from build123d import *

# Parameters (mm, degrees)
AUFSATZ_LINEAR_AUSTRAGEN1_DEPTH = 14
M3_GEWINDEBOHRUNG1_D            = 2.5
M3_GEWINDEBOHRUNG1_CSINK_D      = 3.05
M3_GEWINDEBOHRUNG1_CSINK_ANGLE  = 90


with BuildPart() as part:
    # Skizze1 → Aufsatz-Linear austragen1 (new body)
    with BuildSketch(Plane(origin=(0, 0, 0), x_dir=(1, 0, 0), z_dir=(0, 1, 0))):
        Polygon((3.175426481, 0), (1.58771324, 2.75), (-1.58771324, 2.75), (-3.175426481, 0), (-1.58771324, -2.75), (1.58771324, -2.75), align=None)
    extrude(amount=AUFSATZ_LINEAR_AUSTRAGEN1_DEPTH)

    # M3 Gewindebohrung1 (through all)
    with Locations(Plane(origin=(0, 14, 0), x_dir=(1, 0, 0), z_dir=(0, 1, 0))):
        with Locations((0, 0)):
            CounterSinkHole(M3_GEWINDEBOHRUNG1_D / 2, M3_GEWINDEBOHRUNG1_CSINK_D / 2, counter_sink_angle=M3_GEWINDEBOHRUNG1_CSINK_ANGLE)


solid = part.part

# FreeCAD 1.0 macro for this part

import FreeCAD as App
import Part
import Sketcher

V = App.Vector
Q = App.Units.Quantity


def add_polygon(sketch, points):
    """Adds a closed chain of lines whose ends are joined by coincident constraints."""
    first, n = sketch.GeometryCount, len(points)
    for a, b in zip(points, points[1:] + points[:1]):
        sketch.addGeometry(Part.LineSegment(App.Vector(*a, 0), App.Vector(*b, 0)), False)
    for i in range(n):
        sketch.addConstraint(Sketcher.Constraint("Coincident", first + i, 2, first + (i + 1) % n, 1))

doc = App.newDocument("Part")
body = doc.addObject("PartDesign::Body", "Body")

sketch1 = body.newObject("Sketcher::SketchObject", "Sketch")
sketch1.AttachmentSupport = (doc.getObject("XZ_Plane"), [""])
sketch1.MapMode = "FlatFace"
add_polygon(sketch1, [(3.175426, 0), (1.587713, -2.75), (-1.587713, -2.75), (-3.175426, 0), (-1.587713, 2.75), (1.587713, 2.75)])
sketch1.addConstraint(Sketcher.Constraint("Horizontal", 1))
sketch1.addConstraint(Sketcher.Constraint("Horizontal", 4))
sketch1.addConstraint(Sketcher.Constraint("Symmetric", 0, 2, 3, 2, -1, 1))
sketch1.addConstraint(Sketcher.Constraint("Symmetric", 2, 2, 5, 2, -1, 1))
sketch1.addConstraint(Sketcher.Constraint("PointOnObject", 2, 2, -1))
sketch1.addConstraint(Sketcher.Constraint("Parallel", 2, 5))
sketch1.addConstraint(Sketcher.Constraint("Vertical", 1, 2, 3, 2))
sketch1.addConstraint(Sketcher.Constraint("Angle", 0, Q("-120 deg")))
sketch1.addConstraint(Sketcher.Constraint("DistanceY", 1, 2, 3, 2, Q("5.5 mm")))
sketch1.addConstraint(Sketcher.Constraint("DistanceX", 1, 2, 1, 1, Q("3.175426 mm")))
pad1 = body.newObject("PartDesign::Pad", "Pad")
pad1.Profile = sketch1
pad1.Length = 14
pad1.Reversed = True

sketch2 = body.newObject("Sketcher::SketchObject", "Sketch001")
sketch2.AttachmentSupport = (doc.getObject("XZ_Plane"), [""])
sketch2.MapMode = "FlatFace"
sketch2.AttachmentOffset = App.Placement(V(0, 0, -14), App.Rotation())
sketch2.addGeometry(Part.Circle(V(0, 0, 0), V(0, 0, 1), 1.25), False)
sketch2.addConstraint(Sketcher.Constraint("Coincident", 0, 3, -1, 1))
sketch2.addConstraint(Sketcher.Constraint("Diameter", 0, Q("2.5 mm")))
doc.recompute()
hole = body.newObject("PartDesign::Hole", "Hole")
hole.Profile = sketch2
hole.ThreadType = "None"
hole.Diameter = 2.5
hole.DepthType = "ThroughAll"
hole.HoleCutType = "Countersink"
hole.HoleCutDiameter = 3.05
hole.HoleCutCountersinkAngle = 90
hole.Reversed = True

doc.recompute()
